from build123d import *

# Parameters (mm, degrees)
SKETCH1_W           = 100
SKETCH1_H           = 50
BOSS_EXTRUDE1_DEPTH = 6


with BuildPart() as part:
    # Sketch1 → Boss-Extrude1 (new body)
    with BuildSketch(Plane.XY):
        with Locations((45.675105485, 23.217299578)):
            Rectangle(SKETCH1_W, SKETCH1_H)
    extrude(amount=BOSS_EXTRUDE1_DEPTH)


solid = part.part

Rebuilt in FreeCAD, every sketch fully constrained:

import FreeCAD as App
import Part
import Sketcher


def add_polygon(sketch, points):
    """Adds a closed chain of lines whose ends are joined by coincident constraints."""
    first, n = sketch.GeometryCount, len(points)
    for a, b in zip(points, points[1:] + points[:1]):
        sketch.addGeometry(Part.LineSegment(App.Vector(*a, 0), App.Vector(*b, 0)), False)
    for i in range(n):
        sketch.addConstraint(Sketcher.Constraint("Coincident", first + i, 2, first + (i + 1) % n, 1))

doc = App.newDocument("Part")
params = doc.addObject("Spreadsheet::Sheet", "Params")
for row, (alias, value) in enumerate([
    ("sketch1_width", "100 mm"),
    ("sketch1_height", "50 mm"),
    ("pad1_length", "6 mm"),
], start=1):
    params.set(f"A{row}", alias)
    params.set(f"B{row}", "=" + value)
    params.setAlias(f"B{row}", alias)

body = doc.addObject("PartDesign::Body", "Body")

# Sketch on XY plane
sketch1 = body.newObject("Sketcher::SketchObject", "Sketch")
sketch1.AttachmentSupport = (doc.getObject("XY_Plane"), [""])
sketch1.MapMode = "FlatFace"
add_polygon(sketch1, [(-4, 48), (-4, -2), (96, -2), (96, 48)])  # lines 0-3
sketch1.addConstraint([
    Sketcher.Constraint("Vertical", 0),
    Sketcher.Constraint("Horizontal", 1),
    Sketcher.Constraint("Vertical", 2),
    Sketcher.Constraint("Horizontal", 3),
    Sketcher.Constraint("DistanceX", 1, 1, 1, 2, 100.0),
    Sketcher.Constraint("DistanceY", 0, 2, 0, 1, 50.0),
    Sketcher.Constraint("DistanceY", 0, 2, -1, 1, 1.7827),
    Sketcher.Constraint("DistanceX", 0, 2, -1, 1, 4.324895),
])
sketch1.setExpression("Constraints[8]", "Params.sketch1_width")
sketch1.setExpression("Constraints[9]", "Params.sketch1_height")
pad1 = body.newObject("PartDesign::Pad", "Pad")
pad1.Profile = sketch1
pad1.setExpression("Length", "Params.pad1_length")

doc.recompute()
